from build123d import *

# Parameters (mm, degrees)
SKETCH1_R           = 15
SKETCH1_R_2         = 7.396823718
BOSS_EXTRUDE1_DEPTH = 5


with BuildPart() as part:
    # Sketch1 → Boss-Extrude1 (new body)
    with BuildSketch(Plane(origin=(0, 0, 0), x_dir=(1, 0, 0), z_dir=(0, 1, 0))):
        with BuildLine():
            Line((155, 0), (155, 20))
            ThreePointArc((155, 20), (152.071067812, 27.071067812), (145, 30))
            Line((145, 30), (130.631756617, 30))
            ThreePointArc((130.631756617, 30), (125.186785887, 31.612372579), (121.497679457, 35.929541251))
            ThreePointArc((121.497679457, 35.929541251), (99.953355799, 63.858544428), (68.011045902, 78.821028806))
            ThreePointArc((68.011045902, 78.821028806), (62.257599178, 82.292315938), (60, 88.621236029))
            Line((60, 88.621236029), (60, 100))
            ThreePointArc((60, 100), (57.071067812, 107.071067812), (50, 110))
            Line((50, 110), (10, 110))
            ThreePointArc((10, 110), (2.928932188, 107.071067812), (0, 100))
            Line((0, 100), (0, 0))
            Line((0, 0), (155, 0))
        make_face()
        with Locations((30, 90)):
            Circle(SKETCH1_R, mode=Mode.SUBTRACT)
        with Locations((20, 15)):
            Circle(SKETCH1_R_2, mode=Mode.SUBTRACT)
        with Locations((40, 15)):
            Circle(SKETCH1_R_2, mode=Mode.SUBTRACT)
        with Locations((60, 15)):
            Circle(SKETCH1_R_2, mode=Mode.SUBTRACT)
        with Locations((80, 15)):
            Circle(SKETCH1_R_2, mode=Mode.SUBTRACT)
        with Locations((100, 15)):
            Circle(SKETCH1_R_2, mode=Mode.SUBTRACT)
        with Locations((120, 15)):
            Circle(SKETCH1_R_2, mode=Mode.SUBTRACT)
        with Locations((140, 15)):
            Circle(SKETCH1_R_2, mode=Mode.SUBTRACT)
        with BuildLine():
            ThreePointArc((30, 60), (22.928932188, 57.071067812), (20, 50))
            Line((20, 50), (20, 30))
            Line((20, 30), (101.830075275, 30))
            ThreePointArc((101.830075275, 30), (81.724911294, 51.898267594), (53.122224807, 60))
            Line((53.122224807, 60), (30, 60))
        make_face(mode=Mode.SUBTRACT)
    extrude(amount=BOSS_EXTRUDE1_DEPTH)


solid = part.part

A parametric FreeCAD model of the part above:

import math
import FreeCAD as App
import Part
import Sketcher

V = App.Vector
Q = App.Units.Quantity

doc = App.newDocument("Part")
params = doc.addObject("Spreadsheet::Sheet", "Params")
for row, (alias, value) in enumerate([
    ("sketch1_diameter", "30 mm"),
    ("sketch1_radius", "10 mm"),
    ("sketch1_width", "40 mm"),
    ("sketch1_width2", "155 mm"),
    ("sketch1_height", "20 mm"),
    ("pad1_length", "5 mm"),
], start=1):
    params.set(f"A{row}", alias)
    params.set(f"B{row}", "=" + value)
    params.setAlias(f"B{row}", alias)

body = doc.addObject("PartDesign::Body", "Body")

sketch1 = body.newObject("Sketcher::SketchObject", "Sketch")
sketch1.AttachmentSupport = (doc.getObject("XZ_Plane"), [""])
sketch1.MapMode = "FlatFace"
sketch1.addGeometry([
    Part.LineSegment(V(155, 0, 0), V(155, -20, 0)),
    Part.ArcOfCircle(Part.Circle(V(145, -20, 0), V(0, 0, 1), 10), math.radians(-90), math.radians(0)),
    Part.LineSegment(V(145, -30, 0), V(130.631757, -30, 0)),
    Part.ArcOfCircle(Part.Circle(V(130.631757, -40, 0), V(0, 0, 1), 10), math.radians(90), math.radians(155.980604)),
    Part.ArcOfCircle(Part.Circle(V(53.122225, -5.459088, 0), V(0, 0, 1), 74.85754), math.radians(-78.527627), math.radians(-24.019396)),
    Part.ArcOfCircle(Part.Circle(V(70, -88.621236, 0), V(0, 0, 1), 10), math.radians(101.472373), math.radians(180)),
    Part.LineSegment(V(60, -88.621236, 0), V(60, -100, 0)),
    Part.ArcOfCircle(Part.Circle(V(50, -100, 0), V(0, 0, 1), 10), math.radians(-90), math.radians(0)),
    Part.LineSegment(V(50, -110, 0), V(10, -110, 0)),
    Part.ArcOfCircle(Part.Circle(V(10, -100, 0), V(0, 0, 1), 10), math.radians(180), math.radians(270)),
    Part.LineSegment(V(0, -100, 0), V(0, 0, 0)),
    Part.LineSegment(V(0, 0, 0), V(155, 0, 0)),
    Part.Circle(V(20, -15, 0), V(0, 0, 1), 7.396824),
    Part.Circle(V(40, -15, 0), V(0, 0, 1), 7.396824),
    Part.Circle(V(60, -15, 0), V(0, 0, 1), 7.396824),
    Part.ArcOfCircle(Part.Circle(V(30, -50, 0), V(0, 0, 1), 10), math.radians(180), math.radians(270)),
    Part.LineSegment(V(30, -60, 0), V(53.122225, -60, 0)),
    Part.ArcOfCircle(Part.Circle(V(53.122225, -5.459088, 0), V(0, 0, 1), 54.540912), math.radians(-90), math.radians(-26.740745)),
    Part.LineSegment(V(101.830075, -30, 0), V(20, -30, 0)),
    Part.LineSegment(V(20, -30, 0), V(20, -50, 0)),
    Part.Circle(V(80, -15, 0), V(0, 0, 1), 7.396824),
    Part.Circle(V(100, -15, 0), V(0, 0, 1), 7.396824),
    Part.Circle(V(120, -15, 0), V(0, 0, 1), 7.396824),
    Part.Circle(V(140, -15, 0), V(0, 0, 1), 7.396824),
    Part.Circle(V(30, -90, 0), V(0, 0, 1), 15),
], False)
sketch1.addConstraint([
    Sketcher.Constraint("Tangent", 0, 2, 1, 2),
    Sketcher.Constraint("Tangent", 1, 1, 2, 1),
    Sketcher.Constraint("Tangent", 2, 2, 3, 1),
    Sketcher.Constraint("Tangent", 3, 2, 4, 2),
    Sketcher.Constraint("Tangent", 4, 1, 5, 1),
    Sketcher.Constraint("Tangent", 5, 2, 6, 1),
    Sketcher.Constraint("Tangent", 6, 2, 7, 2),
    Sketcher.Constraint("Tangent", 7, 1, 8, 1),
    Sketcher.Constraint("Tangent", 8, 2, 9, 2),
    Sketcher.Constraint("Tangent", 9, 1, 10, 1),
    Sketcher.Constraint("Coincident", 10, 2, 11, 1),
    Sketcher.Constraint("Coincident", 11, 2, 0, 1),
    Sketcher.Constraint("Tangent", 15, 2, 16, 1),
    Sketcher.Constraint("Tangent", 16, 2, 17, 1),
    Sketcher.Constraint("Coincident", 17, 2, 18, 1),
    Sketcher.Constraint("Coincident", 18, 2, 19, 1),
    Sketcher.Constraint("Tangent", 19, 2, 15, 1),
    Sketcher.Constraint("Vertical", 0),
    Sketcher.Constraint("Horizontal", 2),
    Sketcher.Constraint("Vertical", 6),
    Sketcher.Constraint("Horizontal", 8),
    Sketcher.Constraint("Vertical", 10),
    Sketcher.Constraint("Horizontal", 11),
    Sketcher.Constraint("Horizontal", 16),
    Sketcher.Constraint("Horizontal", 18),
    Sketcher.Constraint("Vertical", 19),
    Sketcher.Constraint("Coincident", 10, 2, -1, 1),
    Sketcher.Constraint("Coincident", 17, 3, 4, 3),
    Sketcher.Constraint("Equal", 1, 3),
    Sketcher.Constraint("Equal", 3, 5),
    Sketcher.Constraint("Equal", 5, 7),
    Sketcher.Constraint("Equal", 7, 9),
    Sketcher.Constraint("Equal", 12, 13),
    Sketcher.Constraint("Equal", 13, 14),
    Sketcher.Constraint("Equal", 9, 15),
    Sketcher.Constraint("Equal", 14, 20),
    Sketcher.Constraint("Equal", 20, 21),
    Sketcher.Constraint("Equal", 21, 22),
    Sketcher.Constraint("Equal", 22, 23),
    Sketcher.Constraint("Horizontal", 12, 3, 13, 3),
    Sketcher.Constraint("Horizontal", 13, 3, 14, 3),
    Sketcher.Constraint("Horizontal", 14, 3, 20, 3),
    Sketcher.Constraint("Horizontal", 20, 3, 21, 3),
    Sketcher.Constraint("Horizontal", 21, 3, 22, 3),
    Sketcher.Constraint("Horizontal", 22, 3, 23, 3),
    Sketcher.Constraint("Horizontal", 2, 2, 17, 2),
    Sketcher.Constraint("Vertical", 15, 3, 24, 3),
    Sketcher.Constraint("Vertical", 14, 3, 5, 2),
    Sketcher.Constraint("Vertical", 12, 3, 18, 2),
    Sketcher.Constraint("Equal", 0, 19),
    Sketcher.Constraint("Diameter", 24, Q("30 mm")),
    Sketcher.Constraint("Radius", 1, Q("10 mm")),
    Sketcher.Constraint("DistanceX", 8, 2, 8, 1, Q("40 mm")),
    Sketcher.Constraint("DistanceX", 11, 1, 11, 2, Q("155 mm")),
    Sketcher.Constraint("DistanceY", 0, 2, 0, 1, Q("20 mm")),
    Sketcher.Constraint("DistanceY", 10, 1, 10, 2, Q("100 mm")),
    Sketcher.Constraint("DistanceX", -1, 1, 12, 3, Q("20 mm")),
    Sketcher.Constraint("DistanceY", 12, 3, -1, 1, Q("15 mm")),
    Sketcher.Constraint("DistanceX", -1, 1, 13, 3, Q("40 mm")),
    Sketcher.Constraint("DistanceX", -1, 1, 20, 3, Q("80 mm")),
    Sketcher.Constraint("DistanceX", -1, 1, 21, 3, Q("100 mm")),
    Sketcher.Constraint("DistanceX", -1, 1, 22, 3, Q("120 mm")),
    Sketcher.Constraint("DistanceX", -1, 1, 23, 3, Q("140 mm")),
    Sketcher.Constraint("DistanceY", 24, 3, -1, 1, Q("90 mm")),
    Sketcher.Constraint("Radius", 4, Q("74.85754 mm")),
    Sketcher.Constraint("Radius", 17, Q("54.540912 mm")),
    Sketcher.Constraint("Diameter", 12, Q("14.793647 mm")),
    Sketcher.Constraint("DistanceX", 2, 2, 2, 1, Q("14.368243 mm")),
])
sketch1.setExpression("Constraints[50]", "Params.sketch1_diameter")
sketch1.setExpression("Constraints[51]", "Params.sketch1_radius")
sketch1.setExpression("Constraints[52]", "Params.sketch1_width")
sketch1.setExpression("Constraints[53]", "Params.sketch1_width2")
sketch1.setExpression("Constraints[54]", "Params.sketch1_height")
pad1 = body.newObject("PartDesign::Pad", "Pad")
pad1.Profile = sketch1
pad1.setExpression("Length", "Params.pad1_length")
pad1.Reversed = True

doc.recompute()
